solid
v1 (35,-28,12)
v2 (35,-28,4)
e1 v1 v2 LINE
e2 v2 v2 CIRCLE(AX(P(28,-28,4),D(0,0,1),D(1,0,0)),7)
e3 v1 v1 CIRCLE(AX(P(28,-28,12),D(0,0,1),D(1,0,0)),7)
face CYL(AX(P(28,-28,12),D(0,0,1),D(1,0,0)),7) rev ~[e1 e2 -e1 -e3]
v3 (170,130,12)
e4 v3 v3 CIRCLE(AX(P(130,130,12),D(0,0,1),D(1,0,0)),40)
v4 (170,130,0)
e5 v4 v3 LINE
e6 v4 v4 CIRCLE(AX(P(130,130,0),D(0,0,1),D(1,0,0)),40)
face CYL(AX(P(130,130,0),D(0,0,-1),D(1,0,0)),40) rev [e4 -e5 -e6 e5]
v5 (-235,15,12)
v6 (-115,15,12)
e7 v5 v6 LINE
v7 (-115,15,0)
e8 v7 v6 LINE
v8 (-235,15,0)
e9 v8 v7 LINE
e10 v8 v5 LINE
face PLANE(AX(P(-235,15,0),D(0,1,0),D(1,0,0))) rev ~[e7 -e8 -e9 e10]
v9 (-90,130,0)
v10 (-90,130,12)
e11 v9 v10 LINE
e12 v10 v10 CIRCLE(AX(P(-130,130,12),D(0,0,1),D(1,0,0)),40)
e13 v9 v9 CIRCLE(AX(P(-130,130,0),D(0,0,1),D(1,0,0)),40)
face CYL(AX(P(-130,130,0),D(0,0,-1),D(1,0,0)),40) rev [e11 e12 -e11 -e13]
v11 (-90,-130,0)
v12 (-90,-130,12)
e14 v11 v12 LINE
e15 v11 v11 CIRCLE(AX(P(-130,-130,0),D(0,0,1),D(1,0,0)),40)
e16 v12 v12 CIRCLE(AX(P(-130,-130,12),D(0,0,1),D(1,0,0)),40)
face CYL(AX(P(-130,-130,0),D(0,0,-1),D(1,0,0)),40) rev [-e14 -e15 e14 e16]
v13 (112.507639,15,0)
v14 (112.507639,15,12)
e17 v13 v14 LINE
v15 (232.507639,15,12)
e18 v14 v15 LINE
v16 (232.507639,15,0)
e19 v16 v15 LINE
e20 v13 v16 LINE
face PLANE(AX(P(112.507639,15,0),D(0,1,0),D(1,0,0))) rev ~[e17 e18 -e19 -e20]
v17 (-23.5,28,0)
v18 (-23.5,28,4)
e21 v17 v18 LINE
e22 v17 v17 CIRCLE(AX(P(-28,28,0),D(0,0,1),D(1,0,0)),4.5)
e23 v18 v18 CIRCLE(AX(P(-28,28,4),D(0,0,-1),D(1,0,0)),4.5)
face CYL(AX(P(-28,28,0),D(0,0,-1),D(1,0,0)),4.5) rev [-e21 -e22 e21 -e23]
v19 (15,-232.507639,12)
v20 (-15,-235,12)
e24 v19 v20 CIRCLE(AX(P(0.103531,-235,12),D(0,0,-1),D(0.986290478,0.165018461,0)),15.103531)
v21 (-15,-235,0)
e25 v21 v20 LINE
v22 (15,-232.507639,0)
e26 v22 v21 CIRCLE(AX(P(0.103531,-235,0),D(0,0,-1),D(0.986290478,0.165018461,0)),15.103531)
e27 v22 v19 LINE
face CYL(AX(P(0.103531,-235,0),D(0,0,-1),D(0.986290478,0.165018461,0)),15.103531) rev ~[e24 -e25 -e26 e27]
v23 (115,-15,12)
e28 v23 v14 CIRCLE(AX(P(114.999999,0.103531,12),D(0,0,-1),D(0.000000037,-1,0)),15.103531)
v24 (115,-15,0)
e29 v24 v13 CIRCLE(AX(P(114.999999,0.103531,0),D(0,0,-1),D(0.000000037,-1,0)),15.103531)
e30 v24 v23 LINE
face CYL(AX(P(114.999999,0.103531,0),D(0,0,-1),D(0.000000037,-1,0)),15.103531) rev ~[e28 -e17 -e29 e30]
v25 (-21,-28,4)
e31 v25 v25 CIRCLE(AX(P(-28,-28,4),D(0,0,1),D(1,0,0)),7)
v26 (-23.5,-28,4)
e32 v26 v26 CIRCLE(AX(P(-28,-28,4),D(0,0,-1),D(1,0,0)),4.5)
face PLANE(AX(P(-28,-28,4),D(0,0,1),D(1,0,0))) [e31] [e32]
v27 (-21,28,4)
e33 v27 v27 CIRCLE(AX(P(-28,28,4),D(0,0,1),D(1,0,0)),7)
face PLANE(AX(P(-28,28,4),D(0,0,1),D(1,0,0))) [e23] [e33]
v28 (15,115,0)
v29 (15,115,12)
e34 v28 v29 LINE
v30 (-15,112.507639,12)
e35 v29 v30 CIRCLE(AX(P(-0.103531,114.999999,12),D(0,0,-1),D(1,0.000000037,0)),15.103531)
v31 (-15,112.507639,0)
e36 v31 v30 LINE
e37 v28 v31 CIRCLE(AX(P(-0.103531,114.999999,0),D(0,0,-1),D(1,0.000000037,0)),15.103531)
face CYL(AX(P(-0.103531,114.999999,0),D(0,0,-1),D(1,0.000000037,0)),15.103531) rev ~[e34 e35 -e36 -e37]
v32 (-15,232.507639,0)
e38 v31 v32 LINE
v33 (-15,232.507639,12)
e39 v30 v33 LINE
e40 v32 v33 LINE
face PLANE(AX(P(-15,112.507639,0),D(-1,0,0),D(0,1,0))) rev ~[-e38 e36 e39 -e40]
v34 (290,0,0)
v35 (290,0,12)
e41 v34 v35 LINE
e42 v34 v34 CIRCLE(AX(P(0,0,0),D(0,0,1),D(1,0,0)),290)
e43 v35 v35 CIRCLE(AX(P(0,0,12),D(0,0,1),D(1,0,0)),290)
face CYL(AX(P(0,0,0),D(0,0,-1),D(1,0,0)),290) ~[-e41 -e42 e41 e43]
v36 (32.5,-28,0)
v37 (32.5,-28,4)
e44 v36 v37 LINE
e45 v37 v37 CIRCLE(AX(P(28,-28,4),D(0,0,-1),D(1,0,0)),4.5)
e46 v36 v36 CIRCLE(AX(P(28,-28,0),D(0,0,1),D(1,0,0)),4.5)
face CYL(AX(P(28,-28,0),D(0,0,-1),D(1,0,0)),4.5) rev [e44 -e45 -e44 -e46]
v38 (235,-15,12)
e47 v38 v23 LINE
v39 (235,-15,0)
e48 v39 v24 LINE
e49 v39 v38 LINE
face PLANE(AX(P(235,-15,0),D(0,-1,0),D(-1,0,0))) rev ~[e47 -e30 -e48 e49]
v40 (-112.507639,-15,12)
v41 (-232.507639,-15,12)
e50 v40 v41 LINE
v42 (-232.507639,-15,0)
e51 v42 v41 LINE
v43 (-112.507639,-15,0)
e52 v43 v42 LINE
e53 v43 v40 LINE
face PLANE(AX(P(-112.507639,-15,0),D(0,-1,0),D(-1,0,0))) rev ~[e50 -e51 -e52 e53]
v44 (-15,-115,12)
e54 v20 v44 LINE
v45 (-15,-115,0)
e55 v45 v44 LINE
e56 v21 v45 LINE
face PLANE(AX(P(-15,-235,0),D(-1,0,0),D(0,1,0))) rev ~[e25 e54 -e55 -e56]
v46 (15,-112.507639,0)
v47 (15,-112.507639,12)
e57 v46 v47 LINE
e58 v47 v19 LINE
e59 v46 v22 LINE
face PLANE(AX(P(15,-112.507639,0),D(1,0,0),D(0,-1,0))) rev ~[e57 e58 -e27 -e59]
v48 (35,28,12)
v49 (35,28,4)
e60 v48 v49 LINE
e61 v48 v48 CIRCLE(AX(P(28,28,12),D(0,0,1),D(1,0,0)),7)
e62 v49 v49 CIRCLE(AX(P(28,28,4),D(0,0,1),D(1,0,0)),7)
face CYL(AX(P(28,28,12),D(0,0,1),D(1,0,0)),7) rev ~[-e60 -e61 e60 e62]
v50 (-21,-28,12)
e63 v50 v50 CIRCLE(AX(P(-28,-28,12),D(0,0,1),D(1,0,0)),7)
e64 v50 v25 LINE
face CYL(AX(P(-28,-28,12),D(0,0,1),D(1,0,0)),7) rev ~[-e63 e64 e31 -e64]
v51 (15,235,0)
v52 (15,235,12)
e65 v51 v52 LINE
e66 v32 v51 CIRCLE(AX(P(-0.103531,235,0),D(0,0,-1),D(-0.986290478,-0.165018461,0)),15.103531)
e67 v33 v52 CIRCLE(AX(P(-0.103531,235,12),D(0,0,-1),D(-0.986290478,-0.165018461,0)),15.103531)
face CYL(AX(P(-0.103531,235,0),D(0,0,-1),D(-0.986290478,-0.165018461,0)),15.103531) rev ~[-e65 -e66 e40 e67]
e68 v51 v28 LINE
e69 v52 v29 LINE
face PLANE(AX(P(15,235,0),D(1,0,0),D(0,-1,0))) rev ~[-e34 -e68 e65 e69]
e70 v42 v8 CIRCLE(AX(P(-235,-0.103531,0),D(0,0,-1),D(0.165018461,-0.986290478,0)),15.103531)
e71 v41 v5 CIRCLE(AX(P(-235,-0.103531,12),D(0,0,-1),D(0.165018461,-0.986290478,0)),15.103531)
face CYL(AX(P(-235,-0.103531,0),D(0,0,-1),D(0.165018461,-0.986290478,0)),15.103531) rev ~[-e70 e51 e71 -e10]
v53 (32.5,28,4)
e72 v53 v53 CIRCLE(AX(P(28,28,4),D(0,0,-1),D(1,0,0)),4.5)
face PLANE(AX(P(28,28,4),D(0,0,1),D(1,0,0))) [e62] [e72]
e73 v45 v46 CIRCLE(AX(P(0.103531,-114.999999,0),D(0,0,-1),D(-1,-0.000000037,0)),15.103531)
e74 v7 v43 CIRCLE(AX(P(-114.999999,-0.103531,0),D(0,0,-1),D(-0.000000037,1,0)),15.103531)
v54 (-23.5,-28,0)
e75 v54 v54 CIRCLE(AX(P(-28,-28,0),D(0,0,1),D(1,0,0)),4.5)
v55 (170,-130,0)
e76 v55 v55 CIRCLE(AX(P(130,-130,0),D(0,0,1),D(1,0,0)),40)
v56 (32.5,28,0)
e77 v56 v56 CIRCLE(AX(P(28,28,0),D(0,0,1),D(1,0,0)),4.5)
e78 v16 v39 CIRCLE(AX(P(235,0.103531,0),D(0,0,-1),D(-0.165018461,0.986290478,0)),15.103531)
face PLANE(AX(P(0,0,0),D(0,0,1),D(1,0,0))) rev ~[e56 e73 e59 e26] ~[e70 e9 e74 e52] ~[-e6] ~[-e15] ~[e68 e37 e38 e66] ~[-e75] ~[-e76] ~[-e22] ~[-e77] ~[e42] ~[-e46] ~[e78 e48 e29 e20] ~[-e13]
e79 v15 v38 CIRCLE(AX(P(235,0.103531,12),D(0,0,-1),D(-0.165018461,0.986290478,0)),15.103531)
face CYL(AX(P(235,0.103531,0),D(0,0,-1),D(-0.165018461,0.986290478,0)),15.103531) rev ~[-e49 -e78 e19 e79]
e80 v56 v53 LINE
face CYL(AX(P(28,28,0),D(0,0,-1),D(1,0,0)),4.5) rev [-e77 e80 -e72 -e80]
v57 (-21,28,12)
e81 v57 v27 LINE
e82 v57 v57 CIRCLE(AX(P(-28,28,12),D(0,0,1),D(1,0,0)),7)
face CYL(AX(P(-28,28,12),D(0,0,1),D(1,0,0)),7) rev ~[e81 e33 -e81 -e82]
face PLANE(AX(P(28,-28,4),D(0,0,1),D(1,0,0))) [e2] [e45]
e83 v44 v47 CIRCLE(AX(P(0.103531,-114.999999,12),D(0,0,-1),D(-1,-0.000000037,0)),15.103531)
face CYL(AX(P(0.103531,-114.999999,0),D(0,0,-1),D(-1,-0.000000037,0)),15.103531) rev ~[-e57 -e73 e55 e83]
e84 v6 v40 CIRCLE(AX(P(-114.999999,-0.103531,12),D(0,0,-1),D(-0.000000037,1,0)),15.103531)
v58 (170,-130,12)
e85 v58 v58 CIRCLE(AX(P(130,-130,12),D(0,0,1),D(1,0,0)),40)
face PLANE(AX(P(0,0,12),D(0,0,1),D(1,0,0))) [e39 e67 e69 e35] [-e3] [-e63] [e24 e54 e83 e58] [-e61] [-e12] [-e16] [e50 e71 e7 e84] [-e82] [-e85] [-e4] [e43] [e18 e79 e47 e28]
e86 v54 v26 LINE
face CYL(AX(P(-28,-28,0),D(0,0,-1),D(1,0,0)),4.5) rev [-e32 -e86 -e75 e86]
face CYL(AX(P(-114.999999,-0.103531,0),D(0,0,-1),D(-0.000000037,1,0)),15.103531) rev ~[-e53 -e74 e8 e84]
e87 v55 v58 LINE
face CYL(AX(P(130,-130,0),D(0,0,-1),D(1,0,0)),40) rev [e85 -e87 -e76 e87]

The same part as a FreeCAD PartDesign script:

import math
import FreeCAD as App
import Part
import Sketcher
from FreeCAD import Vector
Q = App.Units.Quantity

doc = App.newDocument("Part")
body = doc.addObject("PartDesign::Body", "Body")

# Sketch on XY plane
sketch1 = doc.addObject("Sketcher::SketchObject", "Sketch")
body.addObject(sketch1)
sketch1.AttachmentSupport = (doc.XY_Plane, [""])
sketch1.MapMode = "FlatFace"
sketch1.addGeometry([
    Part.Circle(Vector(0, 0, 0), Vector(0, 0, 1), 290),  # 0
    Part.Circle(Vector(-130, -130, 0), Vector(0, 0, 1), 40),  # 1
    Part.ArcOfCircle(Part.Circle(Vector(-235, -0.1, 0), Vector(0, 0, 1), 15.1), math.radians(90), math.radians(279)),  # 2
    Part.LineSegment(Vector(-235, 15, 0), Vector(-115, 15, 0)),  # 3
    Part.ArcOfCircle(Part.Circle(Vector(-115, -0.1, 0), Vector(0, 0, 1), 15.1), math.radians(-81), math.radians(90)),  # 4
    Part.LineSegment(Vector(-112.5, -15, 0), Vector(-232.5, -15, 0)),  # 5
    Part.Circle(Vector(-28, -28, 0), Vector(0, 0, 1), 4.5),  # 6
    Part.ArcOfCircle(Part.Circle(Vector(0.1, -235, 0), Vector(0, 0, 1), 15.1), math.radians(180), math.radians(369)),  # 7
    Part.LineSegment(Vector(-15, -235, 0), Vector(-15, -115, 0)),  # 8
    Part.ArcOfCircle(Part.Circle(Vector(0.1, -115, 0), Vector(0, 0, 1), 15.1), math.radians(9), math.radians(180)),  # 9
    Part.LineSegment(Vector(15, -112.5, 0), Vector(15, -232.5, 0)),  # 10
    Part.Circle(Vector(130, -130, 0), Vector(0, 0, 1), 40),  # 11
    Part.Circle(Vector(28, -28, 0), Vector(0, 0, 1), 4.5),  # 12
    Part.Circle(Vector(-28, 28, 0), Vector(0, 0, 1), 4.5),  # 13
    Part.Circle(Vector(-130, 130, 0), Vector(0, 0, 1), 40),  # 14
    Part.ArcOfCircle(Part.Circle(Vector(-0.1, 235, 0), Vector(0, 0, 1), 15.1), math.radians(0), math.radians(189)),  # 15
    Part.LineSegment(Vector(15, 235, 0), Vector(15, 115, 0)),  # 16
    Part.ArcOfCircle(Part.Circle(Vector(-0.1, 115, 0), Vector(0, 0, 1), 15.1), math.radians(-171), math.radians(0)),  # 17
    Part.LineSegment(Vector(-15, 112.5, 0), Vector(-15, 232.5, 0)),  # 18
    Part.Circle(Vector(28, 28, 0), Vector(0, 0, 1), 4.5),  # 19
    Part.ArcOfCircle(Part.Circle(Vector(235, 0.1, 0), Vector(0, 0, 1), 15.1), math.radians(-90), math.radians(99)),  # 20
    Part.LineSegment(Vector(235, -15, 0), Vector(115, -15, 0)),  # 21
    Part.ArcOfCircle(Part.Circle(Vector(115, 0.1, 0), Vector(0, 0, 1), 15.1), math.radians(99), math.radians(270)),  # 22
    Part.LineSegment(Vector(112.5, 15, 0), Vector(232.5, 15, 0)),  # 23
    Part.Circle(Vector(130, 130, 0), Vector(0, 0, 1), 40),  # 24
], False)
sketch1.addConstraint([
    Sketcher.Constraint("Tangent", 2, 1, 3, 1),
    Sketcher.Constraint("Tangent", 3, 2, 4, 2),
    Sketcher.Constraint("Coincident", 4, 1, 5, 1),
    Sketcher.Constraint("Coincident", 5, 2, 2, 2),
    Sketcher.Constraint("Tangent", 7, 1, 8, 1),
    Sketcher.Constraint("Tangent", 8, 2, 9, 2),
    Sketcher.Constraint("Coincident", 9, 1, 10, 1),
    Sketcher.Constraint("Coincident", 10, 2, 7, 2),
    Sketcher.Constraint("Tangent", 15, 1, 16, 1),
    Sketcher.Constraint("Tangent", 16, 2, 17, 2),
    Sketcher.Constraint("Coincident", 17, 1, 18, 1),
    Sketcher.Constraint("Coincident", 18, 2, 15, 2),
    Sketcher.Constraint("Tangent", 20, 1, 21, 1),
    Sketcher.Constraint("Tangent", 21, 2, 22, 2),
    Sketcher.Constraint("Coincident", 22, 1, 23, 1),
    Sketcher.Constraint("Coincident", 23, 2, 20, 2),
    Sketcher.Constraint("Horizontal", 3),
    Sketcher.Constraint("Horizontal", 5),
    Sketcher.Constraint("Vertical", 8),
    Sketcher.Constraint("Vertical", 10),
    Sketcher.Constraint("Vertical", 16),
    Sketcher.Constraint("Vertical", 18),
    Sketcher.Constraint("Horizontal", 21),
    Sketcher.Constraint("Horizontal", 23),
    Sketcher.Constraint("Coincident", 0, 3, -1, 1),
    Sketcher.Constraint("Equal", 2, 4),
    Sketcher.Constraint("Equal", 4, 7),
    Sketcher.Constraint("Equal", 7, 9),
    Sketcher.Constraint("Equal", 1, 11),
    Sketcher.Constraint("Equal", 6, 12),
    Sketcher.Constraint("Equal", 12, 13),
    Sketcher.Constraint("Equal", 11, 14),
    Sketcher.Constraint("Equal", 9, 15),
    Sketcher.Constraint("Equal", 15, 17),
    Sketcher.Constraint("Equal", 13, 19),
    Sketcher.Constraint("Equal", 17, 20),
    Sketcher.Constraint("Equal", 20, 22),
    Sketcher.Constraint("Equal", 14, 24),
    Sketcher.Constraint("Symmetric", 12, 3, 13, 3, -1, 1),
    Sketcher.Constraint("Symmetric", 11, 3, 14, 3, -1, 1),
    Sketcher.Constraint("Symmetric", 7, 3, 15, 3, -1, 1),
    Sketcher.Constraint("Symmetric", 6, 3, 19, 3, -1, 1),
    Sketcher.Constraint("Symmetric", 2, 3, 20, 3, -1, 1),
    Sketcher.Constraint("Symmetric", 1, 3, 24, 3, -1, 1),
    Sketcher.Constraint("Symmetric", 9, 1, 17, 1, -1, 1),
    Sketcher.Constraint("Symmetric", 4, 1, 22, 1, -1, 1),
    Sketcher.Constraint("Symmetric", 1, 3, 11, 3, -2),
    Sketcher.Constraint("Symmetric", 6, 3, 12, 3, -2),
    Sketcher.Constraint("Horizontal", 5, 2, 20, 1),
    Sketcher.Constraint("Vertical", 10, 2, 15, 1),
    Sketcher.Constraint("Equal", 23, 8),
    Sketcher.Constraint("Diameter", 0, Q("580 mm")),
    Sketcher.Constraint("Diameter", 1, Q("80 mm")),
    Sketcher.Constraint("Diameter", 6, Q("9 mm")),
    Sketcher.Constraint("DistanceX", 3, 1, 3, 2, Q("120 mm")),
    Sketcher.Constraint("DistanceX", 1, 3, -1, 1, Q("130 mm")),
    Sketcher.Constraint("DistanceY", 1, 3, -1, 1, Q("130 mm")),
    Sketcher.Constraint("DistanceX", 2, 3, -1, 1, Q("235 mm")),
    Sketcher.Constraint("DistanceX", 6, 3, -1, 1, Q("28 mm")),
    Sketcher.Constraint("DistanceY", 6, 3, -1, 1, Q("28 mm")),
    Sketcher.Constraint("DistanceY", 7, 3, -1, 1, Q("235 mm")),
    Sketcher.Constraint("DistanceY", -1, 1, 2, 1, Q("15 mm")),
    Sketcher.Constraint("DistanceX", 7, 1, -1, 1, Q("15 mm")),
    Sketcher.Constraint("Radius", 2, Q("15.103531 mm")),
])
pad1 = doc.addObject("PartDesign::Pad", "Pad")
body.addObject(pad1)
pad1.Profile = sketch1
pad1.Length = 12

# Sketch on XY plane
sketch2 = doc.addObject("Sketcher::SketchObject", "Sketch001")
body.addObject(sketch2)
sketch2.AttachmentSupport = (doc.XY_Plane, [""])
sketch2.MapMode = "FlatFace"
sketch2.addGeometry([
    Part.Circle(Vector(0, 0, 0), Vector(0, 0, 1), 290),  # 0
    Part.Circle(Vector(-130, -130, 0), Vector(0, 0, 1), 40),  # 1
    Part.ArcOfCircle(Part.Circle(Vector(-235, -0.1, 0), Vector(0, 0, 1), 15.1), math.radians(90), math.radians(279)),  # 2
    Part.LineSegment(Vector(-235, 15, 0), Vector(-115, 15, 0)),  # 3
    Part.ArcOfCircle(Part.Circle(Vector(-115, -0.1, 0), Vector(0, 0, 1), 15.1), math.radians(-81), math.radians(90)),  # 4
    Part.LineSegment(Vector(-112.5, -15, 0), Vector(-232.5, -15, 0)),  # 5
    Part.Circle(Vector(-28, -28, 0), Vector(0, 0, 1), 4.5),  # 6
    Part.ArcOfCircle(Part.Circle(Vector(0.1, -235, 0), Vector(0, 0, 1), 15.1), math.radians(180), math.radians(369)),  # 7
    Part.LineSegment(Vector(-15, -235, 0), Vector(-15, -115, 0)),  # 8
    Part.ArcOfCircle(Part.Circle(Vector(0.1, -115, 0), Vector(0, 0, 1), 15.1), math.radians(9), math.radians(180)),  # 9
    Part.LineSegment(Vector(15, -112.5, 0), Vector(15, -232.5, 0)),  # 10
    Part.Circle(Vector(130, -130, 0), Vector(0, 0, 1), 40),  # 11
    Part.Circle(Vector(28, -28, 0), Vector(0, 0, 1), 4.5),  # 12
    Part.Circle(Vector(-28, 28, 0), Vector(0, 0, 1), 4.5),  # 13
    Part.Circle(Vector(-130, 130, 0), Vector(0, 0, 1), 40),  # 14
    Part.ArcOfCircle(Part.Circle(Vector(-0.1, 235, 0), Vector(0, 0, 1), 15.1), math.radians(0), math.radians(189)),  # 15
    Part.LineSegment(Vector(15, 235, 0), Vector(15, 115, 0)),  # 16
    Part.ArcOfCircle(Part.Circle(Vector(-0.1, 115, 0), Vector(0, 0, 1), 15.1), math.radians(-171), math.radians(0)),  # 17
    Part.LineSegment(Vector(-15, 112.5, 0), Vector(-15, 232.5, 0)),  # 18
    Part.Circle(Vector(28, 28, 0), Vector(0, 0, 1), 4.5),  # 19
    Part.ArcOfCircle(Part.Circle(Vector(235, 0.1, 0), Vector(0, 0, 1), 15.1), math.radians(-90), math.radians(99)),  # 20
    Part.LineSegment(Vector(235, -15, 0), Vector(115, -15, 0)),  # 21
    Part.ArcOfCircle(Part.Circle(Vector(115, 0.1, 0), Vector(0, 0, 1), 15.1), math.radians(99), math.radians(270)),  # 22
    Part.LineSegment(Vector(112.5, 15, 0), Vector(232.5, 15, 0)),  # 23
    Part.Circle(Vector(130, 130, 0), Vector(0, 0, 1), 40),  # 24
], False)
sketch2.addConstraint([
    Sketcher.Constraint("Tangent", 2, 1, 3, 1),
    Sketcher.Constraint("Tangent", 3, 2, 4, 2),
    Sketcher.Constraint("Coincident", 4, 1, 5, 1),
    Sketcher.Constraint("Coincident", 5, 2, 2, 2),
    Sketcher.Constraint("Tangent", 7, 1, 8, 1),
    Sketcher.Constraint("Tangent", 8, 2, 9, 2),
    Sketcher.Constraint("Coincident", 9, 1, 10, 1),
    Sketcher.Constraint("Coincident", 10, 2, 7, 2),
    Sketcher.Constraint("Tangent", 15, 1, 16, 1),
    Sketcher.Constraint("Tangent", 16, 2, 17, 2),
    Sketcher.Constraint("Coincident", 17, 1, 18, 1),
    Sketcher.Constraint("Coincident", 18, 2, 15, 2),
    Sketcher.Constraint("Tangent", 20, 1, 21, 1),
    Sketcher.Constraint("Tangent", 21, 2, 22, 2),
    Sketcher.Constraint("Coincident", 22, 1, 23, 1),
    Sketcher.Constraint("Coincident", 23, 2, 20, 2),
    Sketcher.Constraint("Horizontal", 3),
    Sketcher.Constraint("Horizontal", 5),
    Sketcher.Constraint("Vertical", 8),
    Sketcher.Constraint("Vertical", 10),
    Sketcher.Constraint("Vertical", 16),
    Sketcher.Constraint("Vertical", 18),
    Sketcher.Constraint("Horizontal", 21),
    Sketcher.Constraint("Horizontal", 23),
    Sketcher.Constraint("Coincident", 0, 3, -1, 1),
    Sketcher.Constraint("Equal", 2, 4),
    Sketcher.Constraint("Equal", 4, 7),
    Sketcher.Constraint("Equal", 7, 9),
    Sketcher.Constraint("Equal", 1, 11),
    Sketcher.Constraint("Equal", 6, 12),
    Sketcher.Constraint("Equal", 12, 13),
    Sketcher.Constraint("Equal", 11, 14),
    Sketcher.Constraint("Equal", 9, 15),
    Sketcher.Constraint("Equal", 15, 17),
    Sketcher.Constraint("Equal", 13, 19),
    Sketcher.Constraint("Equal", 17, 20),
    Sketcher.Constraint("Equal", 20, 22),
    Sketcher.Constraint("Equal", 14, 24),
    Sketcher.Constraint("Symmetric", 12, 3, 13, 3, -1, 1),
    Sketcher.Constraint("Symmetric", 11, 3, 14, 3, -1, 1),
    Sketcher.Constraint("Symmetric", 7, 3, 15, 3, -1, 1),
    Sketcher.Constraint("Symmetric", 6, 3, 19, 3, -1, 1),
    Sketcher.Constraint("Symmetric", 2, 3, 20, 3, -1, 1),
    Sketcher.Constraint("Symmetric", 1, 3, 24, 3, -1, 1),
    Sketcher.Constraint("Symmetric", 9, 1, 17, 1, -1, 1),
    Sketcher.Constraint("Symmetric", 4, 1, 22, 1, -1, 1),
    Sketcher.Constraint("Symmetric", 1, 3, 11, 3, -2),
    Sketcher.Constraint("Symmetric", 6, 3, 12, 3, -2),
    Sketcher.Constraint("Horizontal", 5, 2, 20, 1),
    Sketcher.Constraint("Vertical", 10, 2, 15, 1),
    Sketcher.Constraint("Equal", 23, 8),
    Sketcher.Constraint("Diameter", 0, Q("580 mm")),
    Sketcher.Constraint("Diameter", 1, Q("80 mm")),
    Sketcher.Constraint("Diameter", 6, Q("9 mm")),
    Sketcher.Constraint("DistanceX", 3, 1, 3, 2, Q("120 mm")),
    Sketcher.Constraint("DistanceX", 1, 3, -1, 1, Q("130 mm")),
    Sketcher.Constraint("DistanceY", 1, 3, -1, 1, Q("130 mm")),
    Sketcher.Constraint("DistanceX", 2, 3, -1, 1, Q("235 mm")),
    Sketcher.Constraint("DistanceX", 6, 3, -1, 1, Q("28 mm")),
    Sketcher.Constraint("DistanceY", 6, 3, -1, 1, Q("28 mm")),
    Sketcher.Constraint("DistanceY", 7, 3, -1, 1, Q("235 mm")),
    Sketcher.Constraint("DistanceY", -1, 1, 2, 1, Q("15 mm")),
    Sketcher.Constraint("DistanceX", 7, 1, -1, 1, Q("15 mm")),
    Sketcher.Constraint("Radius", 2, Q("15.103531 mm")),
])
pocket1 = doc.addObject("PartDesign::Pocket", "Pocket")
body.addObject(pocket1)
pocket1.Profile = sketch2
pocket1.Length = 25

# Sketch on XY plane
sketch3 = doc.addObject("Sketcher::SketchObject", "Sketch002")
body.addObject(sketch3)
sketch3.AttachmentSupport = (doc.XY_Plane, [""])
sketch3.MapMode = "FlatFace"
sketch3.AttachmentOffset = App.Placement(Vector(0, 0, 12), App.Rotation())
sketch3.addGeometry([
    Part.Circle(Vector(-28, 28, 0), Vector(0, 0, 1), 7),
    Part.Circle(Vector(28, 28, 0), Vector(0, 0, 1), 7),
    Part.Circle(Vector(-28, -28, 0), Vector(0, 0, 1), 7),
    Part.Circle(Vector(28, -28, 0), Vector(0, 0, 1), 7),
], False)
sketch3.addConstraint([
    Sketcher.Constraint("Equal", 0, 1),
    Sketcher.Constraint("Equal", 1, 2),
    Sketcher.Constraint("Equal", 2, 3),
    Sketcher.Constraint("Symmetric", 1, 3, 2, 3, -1, 1),
    Sketcher.Constraint("Symmetric", 0, 3, 3, 3, -1, 1),
    Sketcher.Constraint("Symmetric", 0, 3, 1, 3, -2),
    Sketcher.Constraint("Diameter", 0, Q("14 mm")),
    Sketcher.Constraint("DistanceX", 0, 3, -1, 1, Q("28 mm")),
    Sketcher.Constraint("DistanceY", -1, 1, 0, 3, Q("28 mm")),
])
pocket2 = doc.addObject("PartDesign::Pocket", "Pocket001")
body.addObject(pocket2)
pocket2.Profile = sketch3
pocket2.Length = 8

doc.recompute()
